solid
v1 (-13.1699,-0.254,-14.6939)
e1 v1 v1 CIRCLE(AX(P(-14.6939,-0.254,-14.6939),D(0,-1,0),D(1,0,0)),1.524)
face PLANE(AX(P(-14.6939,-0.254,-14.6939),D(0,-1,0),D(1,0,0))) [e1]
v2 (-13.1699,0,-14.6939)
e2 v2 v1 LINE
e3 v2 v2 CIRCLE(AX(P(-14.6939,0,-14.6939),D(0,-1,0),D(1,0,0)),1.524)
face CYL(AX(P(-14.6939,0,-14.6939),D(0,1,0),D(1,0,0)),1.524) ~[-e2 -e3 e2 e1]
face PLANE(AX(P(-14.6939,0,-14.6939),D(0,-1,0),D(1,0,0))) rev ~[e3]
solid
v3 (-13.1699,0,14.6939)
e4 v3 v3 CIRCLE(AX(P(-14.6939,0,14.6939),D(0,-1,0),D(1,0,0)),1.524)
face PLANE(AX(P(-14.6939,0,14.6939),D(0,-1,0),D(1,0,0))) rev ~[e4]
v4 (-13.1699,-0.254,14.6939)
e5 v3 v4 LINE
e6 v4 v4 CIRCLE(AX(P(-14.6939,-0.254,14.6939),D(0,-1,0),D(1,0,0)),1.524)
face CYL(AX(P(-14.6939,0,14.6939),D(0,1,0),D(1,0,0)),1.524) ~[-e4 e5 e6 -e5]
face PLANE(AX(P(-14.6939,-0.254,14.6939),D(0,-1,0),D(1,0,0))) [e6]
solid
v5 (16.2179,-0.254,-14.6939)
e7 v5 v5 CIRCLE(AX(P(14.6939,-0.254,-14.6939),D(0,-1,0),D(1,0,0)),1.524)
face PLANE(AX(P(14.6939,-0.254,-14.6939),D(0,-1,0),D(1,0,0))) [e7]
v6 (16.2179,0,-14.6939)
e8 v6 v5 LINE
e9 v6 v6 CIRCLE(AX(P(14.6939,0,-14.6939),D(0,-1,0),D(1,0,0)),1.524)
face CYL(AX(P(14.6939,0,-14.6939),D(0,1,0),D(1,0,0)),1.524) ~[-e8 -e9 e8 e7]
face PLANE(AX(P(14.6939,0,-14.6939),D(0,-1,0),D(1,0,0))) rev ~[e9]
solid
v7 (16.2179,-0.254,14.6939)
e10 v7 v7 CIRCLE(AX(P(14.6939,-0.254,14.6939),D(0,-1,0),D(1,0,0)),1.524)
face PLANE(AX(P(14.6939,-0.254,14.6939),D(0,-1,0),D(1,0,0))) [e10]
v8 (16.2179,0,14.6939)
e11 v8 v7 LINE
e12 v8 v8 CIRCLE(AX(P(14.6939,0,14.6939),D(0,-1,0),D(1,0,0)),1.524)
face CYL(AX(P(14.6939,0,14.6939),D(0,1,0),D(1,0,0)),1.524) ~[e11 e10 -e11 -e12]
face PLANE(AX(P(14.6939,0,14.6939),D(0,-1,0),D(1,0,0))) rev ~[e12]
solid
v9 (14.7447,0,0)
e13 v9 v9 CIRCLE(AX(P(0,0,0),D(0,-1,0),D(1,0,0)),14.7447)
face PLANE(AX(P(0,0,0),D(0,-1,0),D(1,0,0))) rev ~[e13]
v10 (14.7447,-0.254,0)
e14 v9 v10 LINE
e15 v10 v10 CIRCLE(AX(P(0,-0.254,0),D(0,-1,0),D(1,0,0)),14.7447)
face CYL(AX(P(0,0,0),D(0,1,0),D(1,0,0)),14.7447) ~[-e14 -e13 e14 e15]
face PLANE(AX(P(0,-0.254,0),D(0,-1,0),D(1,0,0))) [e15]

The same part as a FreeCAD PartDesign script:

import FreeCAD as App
import Part
import Sketcher

V = App.Vector
Q = App.Units.Quantity

doc = App.newDocument("Part")
body = doc.addObject("PartDesign::Body", "Body")
body.AllowCompound = True

# Sketch on XZ plane
sketch1 = doc.addObject("Sketcher::SketchObject", "Sketch")
body.addObject(sketch1)
sketch1.AttachmentSupport = (doc.XZ_Plane, [""])
sketch1.MapMode = "FlatFace"
sketch1.addGeometry([
    Part.Circle(V(0, 0, 0), V(0, 0, 1), 14.7),  # 0
    Part.Circle(V(-14.7, 14.7, 0), V(0, 0, 1), 1.5),  # 1
    Part.Circle(V(14.7, 14.7, 0), V(0, 0, 1), 1.5),  # 2
    Part.Circle(V(14.7, -14.7, 0), V(0, 0, 1), 1.5),  # 3
    Part.Circle(V(-14.7, -14.7, 0), V(0, 0, 1), 1.5),  # 4
], False)
sketch1.addConstraint([
    Sketcher.Constraint("Coincident", 0, 3, -1, 1),
    Sketcher.Constraint("Equal", 1, 2),
    Sketcher.Constraint("Equal", 2, 3),
    Sketcher.Constraint("Equal", 3, 4),
    Sketcher.Constraint("Symmetric", 1, 3, 3, 3, -1, 1),
    Sketcher.Constraint("Symmetric", 2, 3, 4, 3, -1, 1),
    Sketcher.Constraint("Symmetric", 1, 3, 2, 3, -2),
    Sketcher.Constraint("Diameter", 1, Q("0.12 in")),
    Sketcher.Constraint("Diameter", 0, Q("1.161 in")),
    Sketcher.Constraint("DistanceX", 1, 3, 2, 3, Q("1.157 in")),
    Sketcher.Constraint("DistanceY", 3, 3, 2, 3, Q("1.157 in")),
])
pad1 = doc.addObject("PartDesign::Pad", "Pad")
body.addObject(pad1)
pad1.Profile = sketch1
pad1.Length = Q("0.01 in")

doc.recompute()
